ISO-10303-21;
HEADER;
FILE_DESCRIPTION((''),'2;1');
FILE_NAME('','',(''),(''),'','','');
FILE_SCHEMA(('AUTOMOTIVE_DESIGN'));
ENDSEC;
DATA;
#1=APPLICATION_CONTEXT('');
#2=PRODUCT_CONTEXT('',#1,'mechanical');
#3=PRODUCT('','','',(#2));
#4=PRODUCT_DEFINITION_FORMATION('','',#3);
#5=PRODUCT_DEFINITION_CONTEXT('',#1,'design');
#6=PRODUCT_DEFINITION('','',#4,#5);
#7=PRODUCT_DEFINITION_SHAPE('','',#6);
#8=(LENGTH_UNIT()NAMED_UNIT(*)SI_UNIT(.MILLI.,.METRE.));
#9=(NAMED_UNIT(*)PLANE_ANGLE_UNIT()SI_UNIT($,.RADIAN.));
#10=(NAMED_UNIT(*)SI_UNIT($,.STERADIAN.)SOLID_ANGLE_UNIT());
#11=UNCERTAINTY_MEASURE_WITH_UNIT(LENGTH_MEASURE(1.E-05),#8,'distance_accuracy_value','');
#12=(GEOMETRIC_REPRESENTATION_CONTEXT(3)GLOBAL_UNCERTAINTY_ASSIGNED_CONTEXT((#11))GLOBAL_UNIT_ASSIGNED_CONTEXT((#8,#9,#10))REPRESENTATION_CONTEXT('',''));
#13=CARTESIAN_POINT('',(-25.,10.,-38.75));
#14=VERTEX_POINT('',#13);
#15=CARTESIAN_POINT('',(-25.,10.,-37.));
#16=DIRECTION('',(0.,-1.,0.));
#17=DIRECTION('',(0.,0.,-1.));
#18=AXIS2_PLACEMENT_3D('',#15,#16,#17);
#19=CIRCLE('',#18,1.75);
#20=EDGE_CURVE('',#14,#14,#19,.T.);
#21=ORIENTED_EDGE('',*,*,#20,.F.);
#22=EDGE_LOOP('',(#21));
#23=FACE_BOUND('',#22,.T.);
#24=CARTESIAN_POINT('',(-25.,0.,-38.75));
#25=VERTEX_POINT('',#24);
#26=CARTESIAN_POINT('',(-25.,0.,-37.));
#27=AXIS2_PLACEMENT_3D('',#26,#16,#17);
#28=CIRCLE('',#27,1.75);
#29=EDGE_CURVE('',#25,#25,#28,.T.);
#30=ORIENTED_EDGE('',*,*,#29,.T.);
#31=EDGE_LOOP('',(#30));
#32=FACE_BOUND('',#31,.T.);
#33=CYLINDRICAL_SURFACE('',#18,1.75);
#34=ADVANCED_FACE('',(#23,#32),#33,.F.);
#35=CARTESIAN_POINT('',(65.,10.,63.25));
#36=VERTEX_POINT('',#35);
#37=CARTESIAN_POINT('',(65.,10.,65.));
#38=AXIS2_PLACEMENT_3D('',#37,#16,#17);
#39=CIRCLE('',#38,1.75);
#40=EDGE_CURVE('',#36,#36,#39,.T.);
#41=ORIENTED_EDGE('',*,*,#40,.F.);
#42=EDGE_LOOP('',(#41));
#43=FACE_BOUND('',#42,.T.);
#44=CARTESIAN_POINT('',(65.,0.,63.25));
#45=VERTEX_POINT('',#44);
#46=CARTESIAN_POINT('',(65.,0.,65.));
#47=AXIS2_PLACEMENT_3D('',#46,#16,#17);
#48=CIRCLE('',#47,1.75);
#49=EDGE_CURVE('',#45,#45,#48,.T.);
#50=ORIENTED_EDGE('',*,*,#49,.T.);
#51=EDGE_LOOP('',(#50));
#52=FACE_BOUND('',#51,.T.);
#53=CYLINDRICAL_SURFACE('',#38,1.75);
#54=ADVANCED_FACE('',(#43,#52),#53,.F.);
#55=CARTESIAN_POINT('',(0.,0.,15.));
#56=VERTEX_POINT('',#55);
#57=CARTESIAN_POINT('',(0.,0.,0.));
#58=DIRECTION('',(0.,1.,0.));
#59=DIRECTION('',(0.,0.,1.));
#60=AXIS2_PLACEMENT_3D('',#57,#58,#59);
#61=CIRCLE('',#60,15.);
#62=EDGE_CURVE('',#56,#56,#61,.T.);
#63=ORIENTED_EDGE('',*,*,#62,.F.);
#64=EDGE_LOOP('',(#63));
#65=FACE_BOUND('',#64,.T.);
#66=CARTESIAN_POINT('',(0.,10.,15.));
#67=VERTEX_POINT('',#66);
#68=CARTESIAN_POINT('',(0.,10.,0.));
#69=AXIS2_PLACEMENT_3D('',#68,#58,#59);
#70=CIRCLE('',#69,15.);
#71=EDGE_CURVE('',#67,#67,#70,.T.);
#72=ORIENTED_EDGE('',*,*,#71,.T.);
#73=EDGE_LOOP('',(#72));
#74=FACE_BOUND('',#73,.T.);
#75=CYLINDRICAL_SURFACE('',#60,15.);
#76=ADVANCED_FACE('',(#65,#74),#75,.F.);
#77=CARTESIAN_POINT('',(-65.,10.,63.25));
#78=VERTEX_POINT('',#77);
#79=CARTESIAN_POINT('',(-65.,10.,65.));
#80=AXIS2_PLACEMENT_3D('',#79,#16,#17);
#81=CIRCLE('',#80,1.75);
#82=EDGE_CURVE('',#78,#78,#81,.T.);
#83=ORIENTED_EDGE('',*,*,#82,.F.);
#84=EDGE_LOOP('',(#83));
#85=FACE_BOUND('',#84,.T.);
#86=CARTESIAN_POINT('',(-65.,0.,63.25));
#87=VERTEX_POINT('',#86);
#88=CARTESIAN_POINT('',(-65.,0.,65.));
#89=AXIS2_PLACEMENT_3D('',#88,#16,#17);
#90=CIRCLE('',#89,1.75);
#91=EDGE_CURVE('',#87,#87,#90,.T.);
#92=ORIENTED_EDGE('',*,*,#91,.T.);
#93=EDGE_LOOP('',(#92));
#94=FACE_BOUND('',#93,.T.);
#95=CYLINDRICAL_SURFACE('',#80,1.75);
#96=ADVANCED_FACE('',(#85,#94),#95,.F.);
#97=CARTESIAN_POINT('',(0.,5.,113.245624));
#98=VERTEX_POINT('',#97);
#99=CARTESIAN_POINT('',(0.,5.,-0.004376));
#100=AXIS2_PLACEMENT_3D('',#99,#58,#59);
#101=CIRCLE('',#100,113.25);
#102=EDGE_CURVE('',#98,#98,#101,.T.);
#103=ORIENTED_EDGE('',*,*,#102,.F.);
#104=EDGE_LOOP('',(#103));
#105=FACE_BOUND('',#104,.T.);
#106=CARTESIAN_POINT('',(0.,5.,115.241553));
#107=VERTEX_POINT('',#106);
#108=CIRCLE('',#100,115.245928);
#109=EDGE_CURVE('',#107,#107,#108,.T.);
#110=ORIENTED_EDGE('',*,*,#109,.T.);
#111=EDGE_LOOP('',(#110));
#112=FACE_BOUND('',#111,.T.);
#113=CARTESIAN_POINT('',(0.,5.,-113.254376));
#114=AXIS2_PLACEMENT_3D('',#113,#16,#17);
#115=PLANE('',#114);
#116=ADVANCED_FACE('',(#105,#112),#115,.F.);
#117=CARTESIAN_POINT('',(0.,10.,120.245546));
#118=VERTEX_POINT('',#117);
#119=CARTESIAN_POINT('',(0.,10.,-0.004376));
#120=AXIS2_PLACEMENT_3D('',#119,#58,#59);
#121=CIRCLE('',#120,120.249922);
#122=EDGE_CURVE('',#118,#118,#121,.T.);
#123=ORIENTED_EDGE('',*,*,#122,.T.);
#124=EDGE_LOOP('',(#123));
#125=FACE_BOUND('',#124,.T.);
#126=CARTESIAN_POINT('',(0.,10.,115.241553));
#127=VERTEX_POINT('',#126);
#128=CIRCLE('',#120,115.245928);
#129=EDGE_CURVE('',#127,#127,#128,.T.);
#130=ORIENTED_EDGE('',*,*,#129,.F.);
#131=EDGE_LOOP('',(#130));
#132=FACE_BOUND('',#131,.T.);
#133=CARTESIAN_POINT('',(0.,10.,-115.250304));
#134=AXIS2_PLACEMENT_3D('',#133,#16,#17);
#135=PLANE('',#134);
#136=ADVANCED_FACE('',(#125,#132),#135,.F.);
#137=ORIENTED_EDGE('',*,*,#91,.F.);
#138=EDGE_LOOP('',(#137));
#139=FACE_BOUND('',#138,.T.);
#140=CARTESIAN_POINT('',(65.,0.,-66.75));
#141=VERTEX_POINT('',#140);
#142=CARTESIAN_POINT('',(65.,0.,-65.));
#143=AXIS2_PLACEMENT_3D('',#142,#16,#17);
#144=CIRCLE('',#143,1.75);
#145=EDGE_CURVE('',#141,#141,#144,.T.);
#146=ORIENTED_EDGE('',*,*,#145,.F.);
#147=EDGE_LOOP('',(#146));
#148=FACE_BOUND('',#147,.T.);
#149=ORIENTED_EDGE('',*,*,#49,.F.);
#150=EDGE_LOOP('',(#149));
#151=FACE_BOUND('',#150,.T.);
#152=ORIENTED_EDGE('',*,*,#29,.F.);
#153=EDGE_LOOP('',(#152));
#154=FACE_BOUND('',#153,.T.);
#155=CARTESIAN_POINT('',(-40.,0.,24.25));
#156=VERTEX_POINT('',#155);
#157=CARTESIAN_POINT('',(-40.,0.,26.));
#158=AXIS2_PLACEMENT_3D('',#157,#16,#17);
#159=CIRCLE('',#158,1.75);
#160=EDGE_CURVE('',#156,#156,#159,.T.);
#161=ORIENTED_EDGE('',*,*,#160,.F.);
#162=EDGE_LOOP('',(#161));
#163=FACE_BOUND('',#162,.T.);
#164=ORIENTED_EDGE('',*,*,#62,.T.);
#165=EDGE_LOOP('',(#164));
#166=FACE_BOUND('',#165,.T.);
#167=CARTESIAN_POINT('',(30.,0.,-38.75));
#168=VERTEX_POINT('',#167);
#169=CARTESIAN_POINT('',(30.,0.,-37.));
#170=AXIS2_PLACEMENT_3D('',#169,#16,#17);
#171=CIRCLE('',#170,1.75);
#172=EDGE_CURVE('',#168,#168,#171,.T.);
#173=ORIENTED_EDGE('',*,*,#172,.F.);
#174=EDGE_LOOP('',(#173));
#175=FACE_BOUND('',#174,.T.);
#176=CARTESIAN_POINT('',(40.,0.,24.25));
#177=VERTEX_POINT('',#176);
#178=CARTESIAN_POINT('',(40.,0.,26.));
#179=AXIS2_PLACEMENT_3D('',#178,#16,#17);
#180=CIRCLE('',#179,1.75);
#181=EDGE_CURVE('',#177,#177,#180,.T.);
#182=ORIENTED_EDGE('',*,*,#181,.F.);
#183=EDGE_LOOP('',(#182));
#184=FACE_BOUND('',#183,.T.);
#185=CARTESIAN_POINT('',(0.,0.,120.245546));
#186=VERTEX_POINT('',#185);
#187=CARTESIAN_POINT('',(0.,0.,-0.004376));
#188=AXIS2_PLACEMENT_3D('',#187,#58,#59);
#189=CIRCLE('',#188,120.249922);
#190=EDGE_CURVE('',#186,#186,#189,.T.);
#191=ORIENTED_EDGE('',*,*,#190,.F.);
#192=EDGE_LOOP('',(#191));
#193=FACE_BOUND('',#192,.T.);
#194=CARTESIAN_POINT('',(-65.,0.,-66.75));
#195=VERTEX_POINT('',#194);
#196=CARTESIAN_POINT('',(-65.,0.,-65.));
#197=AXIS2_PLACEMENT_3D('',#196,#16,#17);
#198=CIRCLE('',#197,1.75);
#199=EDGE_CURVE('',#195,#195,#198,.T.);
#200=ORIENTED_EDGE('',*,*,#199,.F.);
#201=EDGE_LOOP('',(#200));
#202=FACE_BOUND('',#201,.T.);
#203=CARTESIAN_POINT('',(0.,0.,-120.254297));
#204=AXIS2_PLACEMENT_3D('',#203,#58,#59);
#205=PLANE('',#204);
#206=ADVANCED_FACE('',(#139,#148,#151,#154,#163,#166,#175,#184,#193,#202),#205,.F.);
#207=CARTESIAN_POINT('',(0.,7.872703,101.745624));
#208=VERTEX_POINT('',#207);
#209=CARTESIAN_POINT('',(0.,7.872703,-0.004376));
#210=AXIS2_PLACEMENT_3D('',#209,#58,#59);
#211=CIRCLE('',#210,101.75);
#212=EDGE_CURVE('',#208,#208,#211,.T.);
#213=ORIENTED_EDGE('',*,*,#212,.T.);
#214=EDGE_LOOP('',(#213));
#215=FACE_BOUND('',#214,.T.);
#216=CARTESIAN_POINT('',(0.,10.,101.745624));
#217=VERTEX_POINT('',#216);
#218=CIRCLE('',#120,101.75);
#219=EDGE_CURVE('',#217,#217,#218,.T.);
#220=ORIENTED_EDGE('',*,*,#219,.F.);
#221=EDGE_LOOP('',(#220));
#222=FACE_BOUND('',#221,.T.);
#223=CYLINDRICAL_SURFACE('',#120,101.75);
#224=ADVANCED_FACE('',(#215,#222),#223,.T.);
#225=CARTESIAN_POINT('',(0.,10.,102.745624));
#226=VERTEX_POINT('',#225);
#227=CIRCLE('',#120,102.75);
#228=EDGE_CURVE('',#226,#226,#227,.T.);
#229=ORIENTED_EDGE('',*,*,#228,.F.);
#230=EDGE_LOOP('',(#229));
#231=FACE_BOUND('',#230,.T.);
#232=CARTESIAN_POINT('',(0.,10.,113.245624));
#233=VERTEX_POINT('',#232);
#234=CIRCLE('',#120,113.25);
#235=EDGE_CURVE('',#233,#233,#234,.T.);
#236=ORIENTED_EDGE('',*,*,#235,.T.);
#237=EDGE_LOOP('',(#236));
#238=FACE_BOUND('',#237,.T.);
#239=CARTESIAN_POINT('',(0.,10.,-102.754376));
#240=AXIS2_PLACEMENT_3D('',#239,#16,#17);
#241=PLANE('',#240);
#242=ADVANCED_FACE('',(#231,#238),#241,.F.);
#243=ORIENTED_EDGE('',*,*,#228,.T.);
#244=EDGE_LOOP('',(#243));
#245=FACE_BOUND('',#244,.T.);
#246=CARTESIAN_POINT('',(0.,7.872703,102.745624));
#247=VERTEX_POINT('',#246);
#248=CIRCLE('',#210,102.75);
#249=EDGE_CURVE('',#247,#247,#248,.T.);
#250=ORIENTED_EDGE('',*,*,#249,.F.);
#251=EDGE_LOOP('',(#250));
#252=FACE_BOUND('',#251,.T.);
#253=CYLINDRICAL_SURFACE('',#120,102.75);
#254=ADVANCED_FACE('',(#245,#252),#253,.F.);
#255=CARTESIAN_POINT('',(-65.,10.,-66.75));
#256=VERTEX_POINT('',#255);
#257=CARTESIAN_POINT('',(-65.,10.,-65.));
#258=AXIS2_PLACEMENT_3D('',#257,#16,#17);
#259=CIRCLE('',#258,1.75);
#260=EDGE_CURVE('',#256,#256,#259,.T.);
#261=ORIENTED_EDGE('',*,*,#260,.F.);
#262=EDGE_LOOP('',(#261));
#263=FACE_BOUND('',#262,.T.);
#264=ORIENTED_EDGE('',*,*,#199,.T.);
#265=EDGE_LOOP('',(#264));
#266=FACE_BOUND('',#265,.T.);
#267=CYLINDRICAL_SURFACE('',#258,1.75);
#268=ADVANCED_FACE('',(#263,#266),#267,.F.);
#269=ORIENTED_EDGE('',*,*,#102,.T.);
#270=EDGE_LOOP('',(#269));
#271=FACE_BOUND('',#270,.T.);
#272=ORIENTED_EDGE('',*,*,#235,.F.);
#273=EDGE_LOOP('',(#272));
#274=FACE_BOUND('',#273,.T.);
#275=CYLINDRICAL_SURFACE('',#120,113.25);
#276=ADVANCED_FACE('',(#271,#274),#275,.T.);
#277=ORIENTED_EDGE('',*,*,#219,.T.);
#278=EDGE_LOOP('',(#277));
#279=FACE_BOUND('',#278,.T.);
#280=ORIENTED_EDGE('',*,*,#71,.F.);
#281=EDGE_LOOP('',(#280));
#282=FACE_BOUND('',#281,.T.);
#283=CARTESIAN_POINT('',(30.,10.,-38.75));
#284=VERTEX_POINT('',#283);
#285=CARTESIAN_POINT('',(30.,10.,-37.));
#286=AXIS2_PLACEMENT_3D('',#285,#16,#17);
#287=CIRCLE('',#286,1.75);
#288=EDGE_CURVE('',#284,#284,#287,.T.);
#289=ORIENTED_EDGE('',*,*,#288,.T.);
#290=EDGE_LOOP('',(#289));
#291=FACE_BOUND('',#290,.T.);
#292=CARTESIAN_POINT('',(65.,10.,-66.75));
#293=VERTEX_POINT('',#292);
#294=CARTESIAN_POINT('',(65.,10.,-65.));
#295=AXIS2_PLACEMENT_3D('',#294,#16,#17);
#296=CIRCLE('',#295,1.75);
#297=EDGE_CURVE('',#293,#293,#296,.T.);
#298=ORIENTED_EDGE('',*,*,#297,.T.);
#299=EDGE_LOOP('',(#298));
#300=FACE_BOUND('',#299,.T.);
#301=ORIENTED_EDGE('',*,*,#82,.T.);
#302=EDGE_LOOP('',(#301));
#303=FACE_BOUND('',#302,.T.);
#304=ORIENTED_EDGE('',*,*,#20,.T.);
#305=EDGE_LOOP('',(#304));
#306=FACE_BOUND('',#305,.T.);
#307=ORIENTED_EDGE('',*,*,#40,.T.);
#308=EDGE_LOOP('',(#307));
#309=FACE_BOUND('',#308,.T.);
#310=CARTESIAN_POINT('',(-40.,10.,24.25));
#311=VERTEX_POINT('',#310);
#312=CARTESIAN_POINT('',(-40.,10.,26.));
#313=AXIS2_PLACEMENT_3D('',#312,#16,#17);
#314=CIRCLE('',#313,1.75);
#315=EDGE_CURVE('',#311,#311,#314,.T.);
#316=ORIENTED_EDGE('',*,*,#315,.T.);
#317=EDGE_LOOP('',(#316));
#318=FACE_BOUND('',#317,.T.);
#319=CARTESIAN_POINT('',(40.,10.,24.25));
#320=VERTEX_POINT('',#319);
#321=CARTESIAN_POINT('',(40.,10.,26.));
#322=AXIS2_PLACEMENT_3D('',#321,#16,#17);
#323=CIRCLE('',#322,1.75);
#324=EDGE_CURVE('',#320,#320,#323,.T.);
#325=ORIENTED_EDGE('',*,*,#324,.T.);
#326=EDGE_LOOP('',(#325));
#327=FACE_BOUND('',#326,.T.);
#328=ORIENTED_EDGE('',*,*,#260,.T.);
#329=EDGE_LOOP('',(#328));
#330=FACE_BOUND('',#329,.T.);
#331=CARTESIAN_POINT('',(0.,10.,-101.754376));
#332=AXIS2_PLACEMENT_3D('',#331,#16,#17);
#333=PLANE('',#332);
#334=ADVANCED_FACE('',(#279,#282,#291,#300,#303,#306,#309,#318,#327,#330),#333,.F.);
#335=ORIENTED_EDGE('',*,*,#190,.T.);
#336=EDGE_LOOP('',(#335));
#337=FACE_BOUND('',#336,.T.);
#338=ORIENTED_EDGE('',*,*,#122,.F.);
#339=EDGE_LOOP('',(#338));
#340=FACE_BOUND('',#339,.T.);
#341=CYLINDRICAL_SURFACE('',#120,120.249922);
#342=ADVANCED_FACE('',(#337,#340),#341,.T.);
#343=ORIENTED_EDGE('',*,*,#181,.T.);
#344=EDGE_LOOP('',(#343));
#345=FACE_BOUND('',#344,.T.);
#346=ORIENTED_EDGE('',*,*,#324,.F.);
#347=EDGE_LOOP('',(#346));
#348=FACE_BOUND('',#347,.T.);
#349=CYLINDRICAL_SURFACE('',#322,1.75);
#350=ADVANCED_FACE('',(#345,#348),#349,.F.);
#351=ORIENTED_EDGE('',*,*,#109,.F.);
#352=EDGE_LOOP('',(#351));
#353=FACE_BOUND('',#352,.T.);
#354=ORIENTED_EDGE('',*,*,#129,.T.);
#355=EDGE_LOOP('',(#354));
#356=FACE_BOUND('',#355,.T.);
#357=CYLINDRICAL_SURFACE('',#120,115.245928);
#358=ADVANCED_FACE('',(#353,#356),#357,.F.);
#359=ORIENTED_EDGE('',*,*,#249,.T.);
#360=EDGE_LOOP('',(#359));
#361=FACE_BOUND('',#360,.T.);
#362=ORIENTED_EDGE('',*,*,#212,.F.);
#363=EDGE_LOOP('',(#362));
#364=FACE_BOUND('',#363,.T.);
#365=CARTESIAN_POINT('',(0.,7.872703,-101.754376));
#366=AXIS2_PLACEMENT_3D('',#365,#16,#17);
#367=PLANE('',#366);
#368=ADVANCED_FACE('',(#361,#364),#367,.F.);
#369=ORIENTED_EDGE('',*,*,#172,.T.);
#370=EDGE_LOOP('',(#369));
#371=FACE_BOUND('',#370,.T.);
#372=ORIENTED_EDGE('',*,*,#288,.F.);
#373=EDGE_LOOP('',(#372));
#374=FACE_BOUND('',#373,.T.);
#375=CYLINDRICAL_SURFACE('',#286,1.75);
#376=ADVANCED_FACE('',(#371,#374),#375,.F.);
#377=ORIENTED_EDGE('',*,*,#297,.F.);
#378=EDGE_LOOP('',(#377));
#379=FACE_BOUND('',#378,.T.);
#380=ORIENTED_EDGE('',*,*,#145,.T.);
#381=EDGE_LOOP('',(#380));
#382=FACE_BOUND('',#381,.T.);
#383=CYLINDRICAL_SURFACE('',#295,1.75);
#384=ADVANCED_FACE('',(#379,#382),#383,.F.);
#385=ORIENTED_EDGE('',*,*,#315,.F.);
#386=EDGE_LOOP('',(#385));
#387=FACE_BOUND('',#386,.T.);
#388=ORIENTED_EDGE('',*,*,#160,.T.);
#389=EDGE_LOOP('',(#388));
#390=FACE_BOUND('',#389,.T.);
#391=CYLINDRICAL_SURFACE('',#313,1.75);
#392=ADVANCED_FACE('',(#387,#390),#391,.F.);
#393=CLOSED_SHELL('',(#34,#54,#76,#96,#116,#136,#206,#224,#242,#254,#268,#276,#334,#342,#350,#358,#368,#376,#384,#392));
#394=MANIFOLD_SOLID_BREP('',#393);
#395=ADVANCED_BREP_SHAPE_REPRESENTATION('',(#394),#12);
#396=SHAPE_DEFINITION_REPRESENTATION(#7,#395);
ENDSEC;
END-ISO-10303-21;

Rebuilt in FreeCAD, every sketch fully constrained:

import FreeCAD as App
import Part
import Sketcher

V = App.Vector
Q = App.Units.Quantity


def add_polygon(sketch, points):
    """Adds a closed chain of lines whose ends are joined by coincident constraints."""
    first, n = sketch.GeometryCount, len(points)
    for a, b in zip(points, points[1:] + points[:1]):
        sketch.addGeometry(Part.LineSegment(App.Vector(*a, 0), App.Vector(*b, 0)), False)
    for i in range(n):
        sketch.addConstraint(Sketcher.Constraint("Coincident", first + i, 2, first + (i + 1) % n, 1))

doc = App.newDocument("Part")
body = doc.addObject("PartDesign::Body", "Body")

sketch1 = body.newObject("Sketcher::SketchObject", "Sketch")
sketch1.AttachmentSupport = (doc.getObject("YZ_Plane"), [""])
sketch1.MapMode = "FlatFace"
add_polygon(sketch1, [(7.9, -101.8), (10, -101.8), (10, 0), (0, 0), (0, -120.3), (10, -120.3), (10, -115.3), (5, -115.3), (5, -113.3), (10, -113.3), (10, -102.8), (7.9, -102.8)])
sketch1.addGeometry(Part.LineSegment(V(10, 0, 0), V(0, 0, 0)), True)
sketch1.addConstraint([
    Sketcher.Constraint("Horizontal", 0),
    Sketcher.Constraint("Vertical", 1),
    Sketcher.Constraint("Horizontal", 2),
    Sketcher.Constraint("Vertical", 3),
    Sketcher.Constraint("Horizontal", 4),
    Sketcher.Constraint("Vertical", 5),
    Sketcher.Constraint("Horizontal", 6),
    Sketcher.Constraint("Vertical", 7),
    Sketcher.Constraint("Horizontal", 8),
    Sketcher.Constraint("Vertical", 9),
    Sketcher.Constraint("Horizontal", 10),
    Sketcher.Constraint("Vertical", 11),
    Sketcher.Constraint("Horizontal", 12),
    Sketcher.Constraint("Coincident", 12, 1, 1, 2),
    Sketcher.Constraint("PointOnObject", 2, 2, -2),
    Sketcher.Constraint("PointOnObject", 12, 2, -2),
    Sketcher.Constraint("Vertical", 1, 2, 4, 2),
    Sketcher.Constraint("Vertical", 5, 2, 8, 2),
    Sketcher.Constraint("DistanceX", 2, 2, 2, 1, Q("10 mm")),
    Sketcher.Constraint("DistanceX", 6, 2, 6, 1, Q("5 mm")),
    Sketcher.Constraint("DistanceY", 11, 1, 11, 2, Q("1 mm")),
    Sketcher.Constraint("DistanceY", 9, 1, 9, 2, Q("10.5 mm")),
    Sketcher.Constraint("DistanceY", 1, 1, 1, 2, Q("101.75 mm")),
    Sketcher.Constraint("DistanceY", 3, 2, 3, 1, Q("120.249922 mm")),
    Sketcher.Constraint("DistanceY", 7, 1, 7, 2, Q("1.995928 mm")),
    Sketcher.Constraint("DistanceX", 0, 1, 0, 2, Q("2.127297 mm")),
    Sketcher.Constraint("DistanceY", 0, 2, -1, 1, Q("101.754376 mm")),
])
revolution = body.newObject("PartDesign::Revolution", "Revolution")
revolution.Profile = sketch1
revolution.ReferenceAxis = (sketch1, ["Axis0"])
revolution.Angle = 360

sketch2 = body.newObject("Sketcher::SketchObject", "Sketch001")
sketch2.AttachmentSupport = (doc.getObject("XZ_Plane"), [""])
sketch2.MapMode = "FlatFace"
sketch2.AttachmentOffset = App.Placement(V(0, 0, -10), App.Rotation())
sketch2.addGeometry(Part.Circle(V(0, 0, 0), V(0, 0, 1), 15), False)
sketch2.addConstraint([
    Sketcher.Constraint("Coincident", 0, 3, -1, 1),
    Sketcher.Constraint("Diameter", 0, Q("30 mm")),
])
pocket1 = body.newObject("PartDesign::Pocket", "Pocket")
pocket1.Profile = sketch2
pocket1.Length = 10
pocket1.Reversed = True

sketch3 = body.newObject("Sketcher::SketchObject", "Sketch002")
sketch3.AttachmentSupport = (doc.getObject("XZ_Plane"), [""])
sketch3.MapMode = "FlatFace"
sketch3.addGeometry([
    Part.Circle(V(-25, -37, 0), V(0, 0, 1), 1.8),
    Part.Circle(V(-40, 26, 0), V(0, 0, 1), 1.8),
    Part.Circle(V(40, 26, 0), V(0, 0, 1), 1.8),
    Part.Circle(V(30, -37, 0), V(0, 0, 1), 1.8),
], False)
sketch3.addConstraint([
    Sketcher.Constraint("Equal", 0, 1),
    Sketcher.Constraint("Equal", 1, 2),
    Sketcher.Constraint("Equal", 2, 3),
    Sketcher.Constraint("Symmetric", 1, 3, 2, 3, -2),
    Sketcher.Constraint("Horizontal", 0, 3, 3, 3),
    Sketcher.Constraint("Diameter", 0, Q("3.5 mm")),
    Sketcher.Constraint("DistanceX", 0, 3, -1, 1, Q("25 mm")),
    Sketcher.Constraint("DistanceY", 0, 3, -1, 1, Q("37 mm")),
    Sketcher.Constraint("DistanceX", 1, 3, -1, 1, Q("40 mm")),
    Sketcher.Constraint("DistanceY", -1, 1, 1, 3, Q("26 mm")),
    Sketcher.Constraint("DistanceX", -1, 1, 3, 3, Q("30 mm")),
])
pocket2 = body.newObject("PartDesign::Pocket", "Pocket001")
pocket2.Profile = sketch3
pocket2.Length = 10

sketch4 = body.newObject("Sketcher::SketchObject", "Sketch003")
sketch4.AttachmentSupport = (doc.getObject("XZ_Plane"), [""])
sketch4.MapMode = "FlatFace"
sketch4.addGeometry([
    Part.Circle(V(-65, 65, 0), V(0, 0, 1), 1.8),
    Part.Circle(V(-65, -65, 0), V(0, 0, 1), 1.8),
    Part.Circle(V(65, 65, 0), V(0, 0, 1), 1.8),
    Part.Circle(V(65, -65, 0), V(0, 0, 1), 1.8),
], False)
sketch4.addConstraint([
    Sketcher.Constraint("Equal", 0, 1),
    Sketcher.Constraint("Equal", 1, 2),
    Sketcher.Constraint("Equal", 2, 3),
    Sketcher.Constraint("Symmetric", 1, 3, 2, 3, -1, 1),
    Sketcher.Constraint("Symmetric", 0, 3, 3, 3, -1, 1),
    Sketcher.Constraint("Symmetric", 0, 3, 2, 3, -2),
    Sketcher.Constraint("Diameter", 0, Q("3.5 mm")),
    Sketcher.Constraint("DistanceX", 0, 3, -1, 1, Q("65 mm")),
    Sketcher.Constraint("DistanceY", -1, 1, 0, 3, Q("65 mm")),
])
pocket3 = body.newObject("PartDesign::Pocket", "Pocket002")
pocket3.Profile = sketch4
pocket3.Length = 10

doc.recompute()
